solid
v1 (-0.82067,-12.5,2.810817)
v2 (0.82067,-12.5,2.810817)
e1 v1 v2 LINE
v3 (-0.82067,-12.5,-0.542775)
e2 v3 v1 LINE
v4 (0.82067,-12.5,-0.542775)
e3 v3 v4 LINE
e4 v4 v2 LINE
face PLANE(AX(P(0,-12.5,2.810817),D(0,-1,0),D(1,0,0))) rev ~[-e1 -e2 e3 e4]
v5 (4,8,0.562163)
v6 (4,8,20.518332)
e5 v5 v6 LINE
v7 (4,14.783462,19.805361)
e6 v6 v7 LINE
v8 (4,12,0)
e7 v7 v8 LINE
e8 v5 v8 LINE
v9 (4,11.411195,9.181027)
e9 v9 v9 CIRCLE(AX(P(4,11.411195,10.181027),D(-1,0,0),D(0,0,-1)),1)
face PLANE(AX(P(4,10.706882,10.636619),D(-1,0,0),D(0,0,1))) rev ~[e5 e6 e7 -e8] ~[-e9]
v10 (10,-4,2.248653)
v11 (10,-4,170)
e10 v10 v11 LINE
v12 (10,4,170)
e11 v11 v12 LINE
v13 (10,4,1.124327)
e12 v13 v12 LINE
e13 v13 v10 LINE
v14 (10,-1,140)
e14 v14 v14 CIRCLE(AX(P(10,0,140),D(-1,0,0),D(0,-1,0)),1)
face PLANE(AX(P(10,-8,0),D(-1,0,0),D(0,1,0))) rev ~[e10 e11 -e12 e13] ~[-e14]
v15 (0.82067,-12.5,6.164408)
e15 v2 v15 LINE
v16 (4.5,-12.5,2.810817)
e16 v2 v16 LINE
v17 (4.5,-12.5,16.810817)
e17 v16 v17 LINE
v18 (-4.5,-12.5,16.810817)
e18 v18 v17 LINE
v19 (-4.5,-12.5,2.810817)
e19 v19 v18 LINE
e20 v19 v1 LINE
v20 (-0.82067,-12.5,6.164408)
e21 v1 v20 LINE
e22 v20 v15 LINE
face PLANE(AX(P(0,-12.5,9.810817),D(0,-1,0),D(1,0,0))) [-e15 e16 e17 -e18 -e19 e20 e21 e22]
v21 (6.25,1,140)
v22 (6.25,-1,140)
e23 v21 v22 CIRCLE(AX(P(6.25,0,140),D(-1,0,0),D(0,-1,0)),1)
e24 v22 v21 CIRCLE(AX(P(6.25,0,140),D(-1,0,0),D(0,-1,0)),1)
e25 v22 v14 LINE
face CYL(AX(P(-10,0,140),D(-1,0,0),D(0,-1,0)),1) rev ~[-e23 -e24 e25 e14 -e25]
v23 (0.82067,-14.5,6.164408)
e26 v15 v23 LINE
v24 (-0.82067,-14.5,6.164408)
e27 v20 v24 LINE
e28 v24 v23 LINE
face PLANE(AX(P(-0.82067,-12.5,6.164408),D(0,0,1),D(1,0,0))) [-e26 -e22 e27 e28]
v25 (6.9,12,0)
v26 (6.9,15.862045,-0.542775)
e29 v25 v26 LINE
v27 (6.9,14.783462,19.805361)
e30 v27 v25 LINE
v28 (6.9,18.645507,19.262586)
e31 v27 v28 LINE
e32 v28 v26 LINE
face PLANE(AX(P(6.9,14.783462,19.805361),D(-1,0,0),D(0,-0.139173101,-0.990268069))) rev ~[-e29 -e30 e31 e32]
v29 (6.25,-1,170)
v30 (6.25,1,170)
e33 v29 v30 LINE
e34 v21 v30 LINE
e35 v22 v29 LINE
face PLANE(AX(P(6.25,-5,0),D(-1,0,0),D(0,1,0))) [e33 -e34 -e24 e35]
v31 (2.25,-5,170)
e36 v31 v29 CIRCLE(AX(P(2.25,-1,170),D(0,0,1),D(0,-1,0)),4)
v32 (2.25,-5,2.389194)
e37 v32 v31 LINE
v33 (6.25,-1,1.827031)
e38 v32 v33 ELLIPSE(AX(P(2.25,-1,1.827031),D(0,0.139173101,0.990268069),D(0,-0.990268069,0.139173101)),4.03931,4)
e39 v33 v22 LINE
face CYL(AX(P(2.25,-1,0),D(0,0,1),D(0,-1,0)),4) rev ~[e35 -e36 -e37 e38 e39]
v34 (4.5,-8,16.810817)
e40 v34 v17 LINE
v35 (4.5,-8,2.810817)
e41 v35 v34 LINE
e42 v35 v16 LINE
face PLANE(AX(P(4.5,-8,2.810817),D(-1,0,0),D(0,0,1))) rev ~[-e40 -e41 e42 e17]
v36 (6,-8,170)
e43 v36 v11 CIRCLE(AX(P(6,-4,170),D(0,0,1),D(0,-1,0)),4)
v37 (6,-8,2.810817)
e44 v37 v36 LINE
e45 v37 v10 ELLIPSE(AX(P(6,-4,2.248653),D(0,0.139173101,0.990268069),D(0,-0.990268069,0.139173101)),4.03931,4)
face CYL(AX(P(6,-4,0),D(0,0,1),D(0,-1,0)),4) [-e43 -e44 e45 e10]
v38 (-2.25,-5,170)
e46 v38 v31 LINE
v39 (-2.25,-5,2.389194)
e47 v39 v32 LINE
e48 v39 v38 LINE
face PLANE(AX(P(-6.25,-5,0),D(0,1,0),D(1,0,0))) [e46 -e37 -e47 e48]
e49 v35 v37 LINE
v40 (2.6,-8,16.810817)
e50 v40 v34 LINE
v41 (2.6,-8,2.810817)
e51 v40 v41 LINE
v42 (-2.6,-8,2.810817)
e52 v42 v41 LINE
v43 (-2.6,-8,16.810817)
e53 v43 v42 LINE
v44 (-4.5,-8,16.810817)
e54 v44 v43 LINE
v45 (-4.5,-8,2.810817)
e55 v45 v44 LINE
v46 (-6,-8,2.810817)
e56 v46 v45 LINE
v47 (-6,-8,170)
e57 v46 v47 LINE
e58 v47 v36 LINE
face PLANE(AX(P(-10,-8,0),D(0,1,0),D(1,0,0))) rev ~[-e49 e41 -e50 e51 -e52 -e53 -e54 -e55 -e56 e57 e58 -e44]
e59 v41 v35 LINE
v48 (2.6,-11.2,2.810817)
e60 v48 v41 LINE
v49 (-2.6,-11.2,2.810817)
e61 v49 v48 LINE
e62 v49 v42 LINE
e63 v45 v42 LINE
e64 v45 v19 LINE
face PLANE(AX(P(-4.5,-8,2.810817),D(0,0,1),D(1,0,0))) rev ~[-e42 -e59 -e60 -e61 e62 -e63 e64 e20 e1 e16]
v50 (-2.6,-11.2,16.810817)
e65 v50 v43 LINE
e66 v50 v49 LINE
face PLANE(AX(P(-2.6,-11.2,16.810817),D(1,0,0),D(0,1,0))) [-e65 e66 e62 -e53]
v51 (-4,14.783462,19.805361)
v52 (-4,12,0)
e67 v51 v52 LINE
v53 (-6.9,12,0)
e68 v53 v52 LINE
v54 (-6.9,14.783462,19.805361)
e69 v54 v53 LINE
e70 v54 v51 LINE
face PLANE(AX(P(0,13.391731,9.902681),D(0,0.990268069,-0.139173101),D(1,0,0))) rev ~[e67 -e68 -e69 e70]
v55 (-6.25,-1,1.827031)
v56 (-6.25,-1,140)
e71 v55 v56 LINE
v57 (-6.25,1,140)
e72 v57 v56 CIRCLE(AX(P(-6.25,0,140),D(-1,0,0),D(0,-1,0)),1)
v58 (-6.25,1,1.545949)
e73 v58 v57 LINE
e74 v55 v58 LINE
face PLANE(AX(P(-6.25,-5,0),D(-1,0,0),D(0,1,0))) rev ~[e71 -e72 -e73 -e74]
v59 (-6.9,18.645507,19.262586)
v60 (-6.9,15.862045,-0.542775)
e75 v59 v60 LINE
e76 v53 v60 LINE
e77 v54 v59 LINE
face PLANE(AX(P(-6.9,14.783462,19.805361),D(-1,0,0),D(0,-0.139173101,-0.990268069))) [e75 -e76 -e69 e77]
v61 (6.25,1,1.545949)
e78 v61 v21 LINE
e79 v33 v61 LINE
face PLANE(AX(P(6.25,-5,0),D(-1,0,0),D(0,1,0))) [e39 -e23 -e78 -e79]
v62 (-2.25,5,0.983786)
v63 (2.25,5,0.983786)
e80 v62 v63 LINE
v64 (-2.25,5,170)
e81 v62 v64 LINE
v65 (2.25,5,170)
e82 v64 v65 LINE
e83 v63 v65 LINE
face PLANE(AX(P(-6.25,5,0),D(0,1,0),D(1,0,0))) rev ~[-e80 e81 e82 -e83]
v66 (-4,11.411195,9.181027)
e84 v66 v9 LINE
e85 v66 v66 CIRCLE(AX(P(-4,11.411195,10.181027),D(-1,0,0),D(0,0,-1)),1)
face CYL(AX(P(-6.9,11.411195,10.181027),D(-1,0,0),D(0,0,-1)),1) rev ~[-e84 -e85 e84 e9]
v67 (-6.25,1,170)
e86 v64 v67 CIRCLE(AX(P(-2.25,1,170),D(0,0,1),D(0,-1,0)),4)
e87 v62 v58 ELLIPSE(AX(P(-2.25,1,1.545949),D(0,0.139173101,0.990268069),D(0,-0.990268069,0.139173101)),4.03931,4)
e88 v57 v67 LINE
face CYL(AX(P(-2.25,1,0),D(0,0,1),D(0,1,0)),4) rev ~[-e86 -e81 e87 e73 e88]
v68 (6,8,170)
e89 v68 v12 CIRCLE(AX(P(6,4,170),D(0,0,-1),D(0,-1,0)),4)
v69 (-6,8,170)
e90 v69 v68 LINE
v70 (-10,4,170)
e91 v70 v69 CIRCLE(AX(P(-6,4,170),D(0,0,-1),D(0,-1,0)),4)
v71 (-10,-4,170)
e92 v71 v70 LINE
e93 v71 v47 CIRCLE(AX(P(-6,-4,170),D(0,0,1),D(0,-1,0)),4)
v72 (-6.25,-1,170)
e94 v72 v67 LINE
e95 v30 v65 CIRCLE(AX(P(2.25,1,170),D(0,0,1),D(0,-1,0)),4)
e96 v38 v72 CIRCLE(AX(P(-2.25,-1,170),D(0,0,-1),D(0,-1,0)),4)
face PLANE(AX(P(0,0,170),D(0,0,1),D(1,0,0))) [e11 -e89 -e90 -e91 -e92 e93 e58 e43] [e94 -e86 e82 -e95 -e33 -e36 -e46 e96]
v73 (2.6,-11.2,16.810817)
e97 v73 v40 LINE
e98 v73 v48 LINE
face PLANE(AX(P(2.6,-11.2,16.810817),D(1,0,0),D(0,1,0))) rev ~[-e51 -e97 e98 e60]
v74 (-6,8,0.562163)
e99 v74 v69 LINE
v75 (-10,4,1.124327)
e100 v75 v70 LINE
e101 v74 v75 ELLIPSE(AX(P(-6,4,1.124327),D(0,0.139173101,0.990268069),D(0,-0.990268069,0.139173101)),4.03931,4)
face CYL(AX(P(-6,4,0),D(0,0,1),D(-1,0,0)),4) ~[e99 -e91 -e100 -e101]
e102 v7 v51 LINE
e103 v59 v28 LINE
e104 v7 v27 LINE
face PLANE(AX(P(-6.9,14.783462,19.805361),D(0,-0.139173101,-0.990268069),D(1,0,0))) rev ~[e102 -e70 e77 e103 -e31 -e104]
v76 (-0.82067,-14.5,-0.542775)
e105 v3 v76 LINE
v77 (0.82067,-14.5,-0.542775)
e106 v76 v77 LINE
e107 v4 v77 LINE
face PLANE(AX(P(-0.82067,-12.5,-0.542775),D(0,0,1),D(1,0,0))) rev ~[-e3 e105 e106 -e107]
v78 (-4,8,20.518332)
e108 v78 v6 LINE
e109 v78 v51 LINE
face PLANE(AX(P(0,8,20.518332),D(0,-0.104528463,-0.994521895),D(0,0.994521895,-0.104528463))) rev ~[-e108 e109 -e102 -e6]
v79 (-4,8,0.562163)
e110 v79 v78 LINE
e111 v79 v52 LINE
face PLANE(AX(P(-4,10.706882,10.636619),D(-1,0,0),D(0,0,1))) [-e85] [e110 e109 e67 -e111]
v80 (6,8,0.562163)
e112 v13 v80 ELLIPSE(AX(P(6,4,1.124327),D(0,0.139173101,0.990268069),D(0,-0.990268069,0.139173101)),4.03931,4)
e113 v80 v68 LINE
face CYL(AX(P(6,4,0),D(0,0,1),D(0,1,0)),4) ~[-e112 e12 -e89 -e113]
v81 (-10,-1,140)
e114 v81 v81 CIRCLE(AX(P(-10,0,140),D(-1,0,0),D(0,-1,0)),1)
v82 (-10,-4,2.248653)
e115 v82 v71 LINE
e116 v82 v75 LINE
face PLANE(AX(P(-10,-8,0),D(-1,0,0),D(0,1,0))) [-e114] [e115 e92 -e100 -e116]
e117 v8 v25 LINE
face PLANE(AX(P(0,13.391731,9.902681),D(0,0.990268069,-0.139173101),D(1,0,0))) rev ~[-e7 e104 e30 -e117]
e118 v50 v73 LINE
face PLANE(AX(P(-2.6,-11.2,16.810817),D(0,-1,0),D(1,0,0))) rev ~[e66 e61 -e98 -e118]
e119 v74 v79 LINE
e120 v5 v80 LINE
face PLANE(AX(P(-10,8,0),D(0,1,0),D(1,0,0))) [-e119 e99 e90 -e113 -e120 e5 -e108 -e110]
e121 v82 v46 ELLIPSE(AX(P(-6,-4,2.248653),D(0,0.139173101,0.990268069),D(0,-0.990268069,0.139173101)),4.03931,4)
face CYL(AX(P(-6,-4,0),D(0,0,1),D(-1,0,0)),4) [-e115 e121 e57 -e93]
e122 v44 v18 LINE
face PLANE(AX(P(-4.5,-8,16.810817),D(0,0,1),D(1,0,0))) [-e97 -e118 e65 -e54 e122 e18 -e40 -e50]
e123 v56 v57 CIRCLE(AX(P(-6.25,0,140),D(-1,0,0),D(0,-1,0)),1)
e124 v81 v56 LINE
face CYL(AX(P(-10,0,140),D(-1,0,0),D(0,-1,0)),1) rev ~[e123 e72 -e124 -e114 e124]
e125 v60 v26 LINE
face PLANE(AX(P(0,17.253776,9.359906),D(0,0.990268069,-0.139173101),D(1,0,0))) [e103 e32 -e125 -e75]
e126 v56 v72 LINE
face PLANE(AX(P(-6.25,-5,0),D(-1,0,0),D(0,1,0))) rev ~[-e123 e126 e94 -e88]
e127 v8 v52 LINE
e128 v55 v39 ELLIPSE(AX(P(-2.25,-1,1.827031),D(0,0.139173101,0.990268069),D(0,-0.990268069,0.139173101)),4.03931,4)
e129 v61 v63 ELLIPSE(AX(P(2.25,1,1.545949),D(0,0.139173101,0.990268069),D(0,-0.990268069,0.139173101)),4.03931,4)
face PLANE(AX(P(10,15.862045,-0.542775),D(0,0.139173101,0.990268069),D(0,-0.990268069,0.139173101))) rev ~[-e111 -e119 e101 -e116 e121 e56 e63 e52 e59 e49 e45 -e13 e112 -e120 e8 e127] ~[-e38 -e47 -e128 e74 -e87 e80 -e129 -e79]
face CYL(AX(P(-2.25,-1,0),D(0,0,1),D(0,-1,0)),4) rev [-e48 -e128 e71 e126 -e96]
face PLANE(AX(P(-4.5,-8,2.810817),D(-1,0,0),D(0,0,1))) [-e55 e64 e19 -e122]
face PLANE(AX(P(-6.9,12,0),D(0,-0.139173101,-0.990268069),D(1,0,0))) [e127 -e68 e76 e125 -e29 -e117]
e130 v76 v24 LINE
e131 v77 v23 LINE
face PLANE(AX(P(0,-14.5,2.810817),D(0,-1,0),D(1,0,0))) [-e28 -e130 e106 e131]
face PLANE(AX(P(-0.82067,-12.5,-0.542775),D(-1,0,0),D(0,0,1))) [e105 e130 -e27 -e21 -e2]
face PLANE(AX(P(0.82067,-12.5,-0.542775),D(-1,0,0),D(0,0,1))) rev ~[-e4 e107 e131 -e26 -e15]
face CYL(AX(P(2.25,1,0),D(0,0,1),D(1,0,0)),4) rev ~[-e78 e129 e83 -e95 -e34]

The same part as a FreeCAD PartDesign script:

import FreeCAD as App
import Part
import Sketcher

V = App.Vector
Q = App.Units.Quantity


def edges_at(feature, points):
    """Names of the edges that pass closest to the given points."""
    edges = feature.Shape.Edges
    near = lambda p: min(range(len(edges)), key=lambda i: edges[i].distToShape(Part.Vertex(*p))[0])
    return sorted({f"Edge{near(p) + 1}" for p in points})


def add_polygon(sketch, points):
    """Adds a closed chain of lines whose ends are joined by coincident constraints."""
    first, n = sketch.GeometryCount, len(points)
    for a, b in zip(points, points[1:] + points[:1]):
        sketch.addGeometry(Part.LineSegment(App.Vector(*a, 0), App.Vector(*b, 0)), False)
    for i in range(n):
        sketch.addConstraint(Sketcher.Constraint("Coincident", first + i, 2, first + (i + 1) % n, 1))

doc = App.newDocument("Part")
body = doc.addObject("PartDesign::Body", "Body")

sketch1 = doc.addObject("Sketcher::SketchObject", "Sketch")
body.addObject(sketch1)
sketch1.AttachmentSupport = (doc.XY_Plane, [""])
sketch1.MapMode = "FlatFace"
add_polygon(sketch1, [(-10, 8), (-10, -8), (10, -8), (10, 8)])
add_polygon(sketch1, [(6, -5), (-6, -5), (-6, 5), (6, 5)])
sketch1.addConstraint(Sketcher.Constraint("Vertical", 0))
sketch1.addConstraint(Sketcher.Constraint("Horizontal", 1))
sketch1.addConstraint(Sketcher.Constraint("Vertical", 2))
sketch1.addConstraint(Sketcher.Constraint("Horizontal", 3))
sketch1.addConstraint(Sketcher.Constraint("Horizontal", 4))
sketch1.addConstraint(Sketcher.Constraint("Vertical", 5))
sketch1.addConstraint(Sketcher.Constraint("Horizontal", 6))
sketch1.addConstraint(Sketcher.Constraint("Vertical", 7))
sketch1.addConstraint(Sketcher.Constraint("Symmetric", 0, 2, 2, 2, -1, 1))
sketch1.addConstraint(Sketcher.Constraint("Symmetric", 4, 2, 6, 2, -1, 1))
sketch1.addConstraint(Sketcher.Constraint("DistanceX", 1, 1, 1, 2, 20.0))
sketch1.addConstraint(Sketcher.Constraint("DistanceY", 0, 2, 0, 1, 16.0))
sketch1.addConstraint(Sketcher.Constraint("DistanceY", 5, 1, 5, 2, 10.0))
sketch1.addConstraint(Sketcher.Constraint("DistanceX", 4, 2, 4, 1, 12.5))
pad1 = doc.addObject("PartDesign::Pad", "Pad")
body.addObject(pad1)
pad1.Profile = sketch1
pad1.Length = 170
doc.recompute()

fillet = doc.addObject("PartDesign::Fillet", "Fillet")
body.addObject(fillet)
fillet.Base = (pad1, edges_at(pad1, [
    (10, -8, 85),
    (-10, -8, 85),
    (-10, 8, 85),
    (10, 8, 85),
]))
fillet.Radius = 4
doc.recompute()

fillet2 = doc.addObject("PartDesign::Fillet", "Fillet001")
body.addObject(fillet2)
fillet2.Base = (fillet, edges_at(fillet, [
    (-6.25, 5, 85),
    (-6.25, -5, 85),
    (6.25, -5, 85),
    (6.25, 5, 85),
]))
fillet2.Radius = 4

sketch2 = doc.addObject("Sketcher::SketchObject", "Sketch001")
body.addObject(sketch2)
sketch2.AttachmentSupport = (doc.YZ_Plane, [""])
sketch2.MapMode = "FlatFace"
sketch2.AttachmentOffset = App.Placement(V(0, 0, -10), App.Rotation())
sketch2.addGeometry(Part.Circle(V(0, 140, 0), V(0, 0, 1), 1), False)
sketch2.addConstraint(Sketcher.Constraint("PointOnObject", 0, 3, -2))
sketch2.addConstraint(Sketcher.Constraint("Diameter", 0, 2.0))
sketch2.addConstraint(Sketcher.Constraint("DistanceY", -1, 1, 0, 3, 140.0))
pocket1 = doc.addObject("PartDesign::Pocket", "Pocket")
body.addObject(pocket1)
pocket1.Profile = sketch2
pocket1.Type = "ThroughAll"
pocket1.Reversed = True

sketch3 = doc.addObject("Sketcher::SketchObject", "Sketch002")
body.addObject(sketch3)
sketch3.AttachmentSupport = (doc.YZ_Plane, [""])
sketch3.MapMode = "FlatFace"
add_polygon(sketch3, [(8, 20.5), (8, 0), (12, 0), (14.8, 19.8)])
sketch3.addConstraint(Sketcher.Constraint("Vertical", 0))
sketch3.addConstraint(Sketcher.Constraint("Horizontal", 1))
sketch3.addConstraint(Sketcher.Constraint("PointOnObject", 0, 2, -1))
sketch3.addConstraint(Sketcher.Constraint("DistanceX", 1, 1, 1, 2, 4.0))
sketch3.addConstraint(Sketcher.Constraint("Angle", 2, Q("82 deg")))
sketch3.addConstraint(Sketcher.Constraint("Angle", 3, Q("174 deg")))
sketch3.addConstraint(Sketcher.Constraint("Distance", 2, 20.0))
sketch3.addConstraint(Sketcher.Constraint("DistanceX", -1, 1, 0, 2, 8.0))
pad2 = doc.addObject("PartDesign::Pad", "Pad001")
body.addObject(pad2)
pad2.Profile = sketch3
pad2.Type = "TwoLengths"
pad2.Length = 4
pad2.Length2 = 4

sketch4 = doc.addObject("Sketcher::SketchObject", "Sketch003")
body.addObject(sketch4)
sketch4.Placement = App.Placement(V(0, 11.76757, -1.653824), App.Rotation(V(1, 0, 0), V(0, -0.139173101, -0.990268069), V(0, 0.990268069, -0.139173101), "ZXY"))
add_polygon(sketch4, [(-7, -2), (-7, -22), (7, -22), (7, -2)])
sketch4.addConstraint(Sketcher.Constraint("Vertical", 0))
sketch4.addConstraint(Sketcher.Constraint("Horizontal", 1))
sketch4.addConstraint(Sketcher.Constraint("Vertical", 2))
sketch4.addConstraint(Sketcher.Constraint("Horizontal", 3))
sketch4.addConstraint(Sketcher.Constraint("DistanceY", 0, 2, 0, 1, 20.0))
sketch4.addConstraint(Sketcher.Constraint("DistanceX", 1, 1, 1, 2, 13.8))
sketch4.addConstraint(Sketcher.Constraint("DistanceX", 0, 2, -1, 1, 6.9))
sketch4.addConstraint(Sketcher.Constraint("DistanceY", 0, 2, -1, 1, 21.670077))
pad3 = doc.addObject("PartDesign::Pad", "Pad002")
body.addObject(pad3)
pad3.Profile = sketch4
pad3.Length = 3.9

sketch5 = doc.addObject("Sketcher::SketchObject", "Sketch004")
body.addObject(sketch5)
sketch5.AttachmentSupport = (doc.YZ_Plane, [""])
sketch5.MapMode = "FlatFace"
sketch5.AttachmentOffset = App.Placement(V(0, 0, -6.9), App.Rotation())
sketch5.addGeometry(Part.Circle(V(11.4, 10.2, 0), V(0, 0, 1), 1), False)
sketch5.addConstraint(Sketcher.Constraint("Diameter", 0, 2.0))
sketch5.addConstraint(Sketcher.Constraint("DistanceX", -1, 1, 0, 3, 11.411195))
sketch5.addConstraint(Sketcher.Constraint("DistanceY", -1, 1, 0, 3, 10.181027))
pocket2 = doc.addObject("PartDesign::Pocket", "Pocket001")
body.addObject(pocket2)
pocket2.Profile = sketch5
pocket2.Type = "ThroughAll"
pocket2.Reversed = True

sketch6 = doc.addObject("Sketcher::SketchObject", "Sketch005")
body.addObject(sketch6)
sketch6.AttachmentSupport = (doc.YZ_Plane, [""])
sketch6.MapMode = "FlatFace"
sketch6.AttachmentOffset = App.Placement(V(0, 0, 10), App.Rotation())
add_polygon(sketch6, [(16, -1), (-12, 3), (-9, -10), (17, -6)])
sketch6.addConstraint(Sketcher.Constraint("Angle", 0, Q("172 deg")))
sketch6.addConstraint(Sketcher.Constraint("Distance", 3, 5.751001))
sketch6.addConstraint(Sketcher.Constraint("DistanceX", 1, 2, 2, 2, 25.499601))
sketch6.addConstraint(Sketcher.Constraint("DistanceX", 0, 2, 3, 2, 27.882399))
sketch6.addConstraint(Sketcher.Constraint("Distance", 2, 25.729918))
sketch6.addConstraint(Sketcher.Constraint("DistanceY", -1, 1, 0, 2, 3.375841))
sketch6.addConstraint(Sketcher.Constraint("DistanceX", 0, 2, 1, 2, 3.18449))
sketch6.addConstraint(Sketcher.Constraint("DistanceX", 0, 2, -1, 1, 12.020354))
pocket3 = doc.addObject("PartDesign::Pocket", "Pocket002")
body.addObject(pocket3)
pocket3.Profile = sketch6
pocket3.Type = "ThroughAll"

sketch7 = doc.addObject("Sketcher::SketchObject", "Sketch006")
body.addObject(sketch7)
sketch7.AttachmentSupport = (doc.XZ_Plane, [""])
sketch7.MapMode = "FlatFace"
sketch7.AttachmentOffset = App.Placement(V(0, 0, 8), App.Rotation())
add_polygon(sketch7, [(-4, 17), (-4, 3), (4, 3), (4, 17)])
sketch7.addConstraint(Sketcher.Constraint("Vertical", 0))
sketch7.addConstraint(Sketcher.Constraint("Horizontal", 1))
sketch7.addConstraint(Sketcher.Constraint("Vertical", 2))
sketch7.addConstraint(Sketcher.Constraint("Horizontal", 3))
sketch7.addConstraint(Sketcher.Constraint("DistanceX", 1, 1, 1, 2, 9.0))
sketch7.addConstraint(Sketcher.Constraint("DistanceY", 0, 2, 0, 1, 14.0))
sketch7.addConstraint(Sketcher.Constraint("DistanceX", 0, 2, -1, 1, 4.5))
sketch7.addConstraint(Sketcher.Constraint("DistanceY", -1, 1, 0, 2, 2.810817))
pad4 = doc.addObject("PartDesign::Pad", "Pad003")
body.addObject(pad4)
pad4.Profile = sketch7
pad4.Length = 4.5

sketch8 = doc.addObject("Sketcher::SketchObject", "Sketch007")
body.addObject(sketch8)
sketch8.AttachmentSupport = (doc.XY_Plane, [""])
sketch8.MapMode = "FlatFace"
sketch8.AttachmentOffset = App.Placement(V(0, 0, 16.810817), App.Rotation())
add_polygon(sketch8, [(-2.6, -8), (-2.6, -11.2), (2.6, -11.2), (2.6, -8)])
sketch8.addConstraint(Sketcher.Constraint("Vertical", 0))
sketch8.addConstraint(Sketcher.Constraint("Horizontal", 1))
sketch8.addConstraint(Sketcher.Constraint("Vertical", 2))
sketch8.addConstraint(Sketcher.Constraint("Horizontal", 3))
sketch8.addConstraint(Sketcher.Constraint("DistanceX", 1, 1, 1, 2, 5.2))
sketch8.addConstraint(Sketcher.Constraint("DistanceY", 0, 2, 0, 1, 3.2))
sketch8.addConstraint(Sketcher.Constraint("DistanceY", 2, 2, -1, 1, 8.0))
sketch8.addConstraint(Sketcher.Constraint("DistanceX", 0, 2, -1, 1, 2.6))
pocket4 = doc.addObject("PartDesign::Pocket", "Pocket003")
body.addObject(pocket4)
pocket4.Profile = sketch8
pocket4.Type = "ThroughAll"

sketch9 = doc.addObject("Sketcher::SketchObject", "Sketch008")
body.addObject(sketch9)
sketch9.AttachmentSupport = (doc.XZ_Plane, [""])
sketch9.MapMode = "FlatFace"
sketch9.AttachmentOffset = App.Placement(V(0, 0, 12.5), App.Rotation())
add_polygon(sketch9, [(-0.8, 6.2), (-0.8, -0.5), (0.8, -0.5), (0.8, 6.2)])
sketch9.addConstraint(Sketcher.Constraint("Vertical", 0))
sketch9.addConstraint(Sketcher.Constraint("Horizontal", 1))
sketch9.addConstraint(Sketcher.Constraint("Vertical", 2))
sketch9.addConstraint(Sketcher.Constraint("Horizontal", 3))
sketch9.addConstraint(Sketcher.Constraint("DistanceX", 1, 1, 1, 2, 1.64134))
sketch9.addConstraint(Sketcher.Constraint("DistanceY", 0, 2, 0, 1, 6.707184))
sketch9.addConstraint(Sketcher.Constraint("DistanceX", 0, 2, -1, 1, 0.82067))
sketch9.addConstraint(Sketcher.Constraint("DistanceY", -1, 1, 2, 2, 6.164408))
pad5 = doc.addObject("PartDesign::Pad", "Pad004")
body.addObject(pad5)
pad5.Profile = sketch9
pad5.Length = 2

doc.recompute()
